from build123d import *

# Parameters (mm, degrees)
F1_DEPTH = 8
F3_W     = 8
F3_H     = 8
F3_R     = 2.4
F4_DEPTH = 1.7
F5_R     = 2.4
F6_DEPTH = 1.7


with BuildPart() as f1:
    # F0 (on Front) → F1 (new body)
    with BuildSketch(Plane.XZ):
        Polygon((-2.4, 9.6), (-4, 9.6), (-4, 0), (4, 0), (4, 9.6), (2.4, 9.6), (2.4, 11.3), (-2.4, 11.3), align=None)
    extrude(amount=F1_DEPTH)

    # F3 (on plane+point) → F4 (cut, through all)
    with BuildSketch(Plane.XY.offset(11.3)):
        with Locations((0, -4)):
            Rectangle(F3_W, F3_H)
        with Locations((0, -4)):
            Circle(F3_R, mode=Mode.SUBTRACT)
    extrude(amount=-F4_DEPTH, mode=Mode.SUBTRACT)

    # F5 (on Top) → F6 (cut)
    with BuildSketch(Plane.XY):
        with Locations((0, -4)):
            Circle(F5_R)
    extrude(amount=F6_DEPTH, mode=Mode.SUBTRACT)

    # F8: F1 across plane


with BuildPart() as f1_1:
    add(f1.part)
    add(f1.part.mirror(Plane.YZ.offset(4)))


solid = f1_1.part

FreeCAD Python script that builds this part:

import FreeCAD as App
import Part
import Sketcher

V = App.Vector

doc = App.newDocument("Part")
body = doc.addObject("PartDesign::Body", "Body")

# Sketch on XZ plane
sketch1 = doc.addObject("Sketcher::SketchObject", "Sketch")
body.addObject(sketch1)
sketch1.AttachmentSupport = (doc.XZ_Plane, [""])
sketch1.MapMode = "FlatFace"
sketch1.addGeometry([
    Part.LineSegment(V(-2.4, 9.6, 0), V(-4, 9.6, 0)),  # 0
    Part.LineSegment(V(-4, 9.6, 0), V(-4, 0, 0)),  # 1
    Part.LineSegment(V(-4, 0, 0), V(4, 0, 0)),  # 2
    Part.LineSegment(V(4, 0, 0), V(4, 9.6, 0)),  # 3
    Part.LineSegment(V(4, 9.6, 0), V(2.4, 9.6, 0)),  # 4
    Part.LineSegment(V(2.4, 9.6, 0), V(2.4, 11.3, 0)),  # 5
    Part.LineSegment(V(2.4, 11.3, 0), V(-2.4, 11.3, 0)),  # 6
    Part.LineSegment(V(-2.4, 11.3, 0), V(-2.4, 9.6, 0)),  # 7
], False)
sketch1.addConstraint([
    Sketcher.Constraint("Coincident", 0, 2, 1, 1),
    Sketcher.Constraint("Coincident", 1, 2, 2, 1),
    Sketcher.Constraint("Coincident", 2, 2, 3, 1),
    Sketcher.Constraint("Coincident", 3, 2, 4, 1),
    Sketcher.Constraint("Coincident", 4, 2, 5, 1),
    Sketcher.Constraint("Coincident", 5, 2, 6, 1),
    Sketcher.Constraint("Coincident", 6, 2, 7, 1),
    Sketcher.Constraint("Coincident", 7, 2, 0, 1),
    Sketcher.Constraint("Horizontal", 0),
    Sketcher.Constraint("Vertical", 1),
    Sketcher.Constraint("Horizontal", 2),
    Sketcher.Constraint("Vertical", 3),
    Sketcher.Constraint("Horizontal", 4),
    Sketcher.Constraint("Vertical", 5),
    Sketcher.Constraint("Horizontal", 6),
    Sketcher.Constraint("Vertical", 7),
    Sketcher.Constraint("Symmetric", 1, 2, 2, 2, -1, 1),
    Sketcher.Constraint("Symmetric", 4, 2, 7, 2, -2),
    Sketcher.Constraint("DistanceX", 2, 1, 2, 2, 8.0),
    Sketcher.Constraint("DistanceX", 0, 2, 0, 1, 1.6),
    Sketcher.Constraint("DistanceY", 1, 2, 1, 1, 9.6),
    Sketcher.Constraint("DistanceY", 5, 1, 5, 2, 1.7),
])
pad1 = doc.addObject("PartDesign::Pad", "Pad")
body.addObject(pad1)
pad1.Profile = sketch1
pad1.Length = 8

# Sketch on XY plane
sketch2 = doc.addObject("Sketcher::SketchObject", "Sketch001")
body.addObject(sketch2)
sketch2.AttachmentSupport = (doc.XY_Plane, [""])
sketch2.MapMode = "FlatFace"
sketch2.AttachmentOffset = App.Placement(V(0, 0, 11.3), App.Rotation())
sketch2.addGeometry([
    Part.LineSegment(V(-4, 0, 0), V(-4, -8, 0)),  # 0
    Part.LineSegment(V(-4, -8, 0), V(4, -8, 0)),  # 1
    Part.LineSegment(V(4, -8, 0), V(4, 0, 0)),  # 2
    Part.LineSegment(V(4, 0, 0), V(-4, 0, 0)),  # 3
    Part.Circle(V(0, -4, 0), V(0, 0, 1), 2.4),  # 4
], False)
sketch2.addConstraint([
    Sketcher.Constraint("Coincident", 0, 2, 1, 1),
    Sketcher.Constraint("Coincident", 1, 2, 2, 1),
    Sketcher.Constraint("Coincident", 2, 2, 3, 1),
    Sketcher.Constraint("Coincident", 3, 2, 0, 1),
    Sketcher.Constraint("Vertical", 0),
    Sketcher.Constraint("Horizontal", 1),
    Sketcher.Constraint("Vertical", 2),
    Sketcher.Constraint("Horizontal", 3),
    Sketcher.Constraint("Symmetric", 2, 2, 3, 2, -1, 1),
    Sketcher.Constraint("PointOnObject", 4, 3, -2),
    Sketcher.Constraint("Equal", 3, 0),
    Sketcher.Constraint("Diameter", 4, 4.8),
    Sketcher.Constraint("DistanceX", 1, 1, 1, 2, 8.0),
    Sketcher.Constraint("DistanceY", 4, 3, -1, 1, 4.0),
])
pocket1 = doc.addObject("PartDesign::Pocket", "Pocket")
body.addObject(pocket1)
pocket1.Profile = sketch2
pocket1.Length = 1.7

# Sketch on XY plane
sketch3 = doc.addObject("Sketcher::SketchObject", "Sketch002")
body.addObject(sketch3)
sketch3.AttachmentSupport = (doc.XY_Plane, [""])
sketch3.MapMode = "FlatFace"
sketch3.addGeometry(Part.Circle(V(0, -4, 0), V(0, 0, 1), 2.4), False)
sketch3.addConstraint([
    Sketcher.Constraint("PointOnObject", 0, 3, -2),
    Sketcher.Constraint("Diameter", 0, 4.8),
    Sketcher.Constraint("DistanceY", 0, 3, -1, 1, 4.0),
])
pocket2 = doc.addObject("PartDesign::Pocket", "Pocket001")
body.addObject(pocket2)
pocket2.Profile = sketch3
pocket2.Length = 1.7
pocket2.Reversed = True
body2 = doc.addObject("PartDesign::Body", "Body001")
doc.recompute()

body2.BaseFeature = body
doc.recompute()

mirroring = doc.addObject("Part::Mirroring", "Mirroring")
mirroring.Source = body
mirroring.Base = V(4, 0, 0)
mirroring.Normal = V(1, 0, 0)
body3 = doc.addObject("PartDesign::Body", "Body002")
body3.BaseFeature = mirroring
boolean = doc.addObject("PartDesign::Boolean", "Boolean")
body2.addObject(boolean)
boolean.Type = "Fuse"
boolean.addObjects([body3])
doc.recompute()
mirroring.Visibility = False

doc.recompute()
